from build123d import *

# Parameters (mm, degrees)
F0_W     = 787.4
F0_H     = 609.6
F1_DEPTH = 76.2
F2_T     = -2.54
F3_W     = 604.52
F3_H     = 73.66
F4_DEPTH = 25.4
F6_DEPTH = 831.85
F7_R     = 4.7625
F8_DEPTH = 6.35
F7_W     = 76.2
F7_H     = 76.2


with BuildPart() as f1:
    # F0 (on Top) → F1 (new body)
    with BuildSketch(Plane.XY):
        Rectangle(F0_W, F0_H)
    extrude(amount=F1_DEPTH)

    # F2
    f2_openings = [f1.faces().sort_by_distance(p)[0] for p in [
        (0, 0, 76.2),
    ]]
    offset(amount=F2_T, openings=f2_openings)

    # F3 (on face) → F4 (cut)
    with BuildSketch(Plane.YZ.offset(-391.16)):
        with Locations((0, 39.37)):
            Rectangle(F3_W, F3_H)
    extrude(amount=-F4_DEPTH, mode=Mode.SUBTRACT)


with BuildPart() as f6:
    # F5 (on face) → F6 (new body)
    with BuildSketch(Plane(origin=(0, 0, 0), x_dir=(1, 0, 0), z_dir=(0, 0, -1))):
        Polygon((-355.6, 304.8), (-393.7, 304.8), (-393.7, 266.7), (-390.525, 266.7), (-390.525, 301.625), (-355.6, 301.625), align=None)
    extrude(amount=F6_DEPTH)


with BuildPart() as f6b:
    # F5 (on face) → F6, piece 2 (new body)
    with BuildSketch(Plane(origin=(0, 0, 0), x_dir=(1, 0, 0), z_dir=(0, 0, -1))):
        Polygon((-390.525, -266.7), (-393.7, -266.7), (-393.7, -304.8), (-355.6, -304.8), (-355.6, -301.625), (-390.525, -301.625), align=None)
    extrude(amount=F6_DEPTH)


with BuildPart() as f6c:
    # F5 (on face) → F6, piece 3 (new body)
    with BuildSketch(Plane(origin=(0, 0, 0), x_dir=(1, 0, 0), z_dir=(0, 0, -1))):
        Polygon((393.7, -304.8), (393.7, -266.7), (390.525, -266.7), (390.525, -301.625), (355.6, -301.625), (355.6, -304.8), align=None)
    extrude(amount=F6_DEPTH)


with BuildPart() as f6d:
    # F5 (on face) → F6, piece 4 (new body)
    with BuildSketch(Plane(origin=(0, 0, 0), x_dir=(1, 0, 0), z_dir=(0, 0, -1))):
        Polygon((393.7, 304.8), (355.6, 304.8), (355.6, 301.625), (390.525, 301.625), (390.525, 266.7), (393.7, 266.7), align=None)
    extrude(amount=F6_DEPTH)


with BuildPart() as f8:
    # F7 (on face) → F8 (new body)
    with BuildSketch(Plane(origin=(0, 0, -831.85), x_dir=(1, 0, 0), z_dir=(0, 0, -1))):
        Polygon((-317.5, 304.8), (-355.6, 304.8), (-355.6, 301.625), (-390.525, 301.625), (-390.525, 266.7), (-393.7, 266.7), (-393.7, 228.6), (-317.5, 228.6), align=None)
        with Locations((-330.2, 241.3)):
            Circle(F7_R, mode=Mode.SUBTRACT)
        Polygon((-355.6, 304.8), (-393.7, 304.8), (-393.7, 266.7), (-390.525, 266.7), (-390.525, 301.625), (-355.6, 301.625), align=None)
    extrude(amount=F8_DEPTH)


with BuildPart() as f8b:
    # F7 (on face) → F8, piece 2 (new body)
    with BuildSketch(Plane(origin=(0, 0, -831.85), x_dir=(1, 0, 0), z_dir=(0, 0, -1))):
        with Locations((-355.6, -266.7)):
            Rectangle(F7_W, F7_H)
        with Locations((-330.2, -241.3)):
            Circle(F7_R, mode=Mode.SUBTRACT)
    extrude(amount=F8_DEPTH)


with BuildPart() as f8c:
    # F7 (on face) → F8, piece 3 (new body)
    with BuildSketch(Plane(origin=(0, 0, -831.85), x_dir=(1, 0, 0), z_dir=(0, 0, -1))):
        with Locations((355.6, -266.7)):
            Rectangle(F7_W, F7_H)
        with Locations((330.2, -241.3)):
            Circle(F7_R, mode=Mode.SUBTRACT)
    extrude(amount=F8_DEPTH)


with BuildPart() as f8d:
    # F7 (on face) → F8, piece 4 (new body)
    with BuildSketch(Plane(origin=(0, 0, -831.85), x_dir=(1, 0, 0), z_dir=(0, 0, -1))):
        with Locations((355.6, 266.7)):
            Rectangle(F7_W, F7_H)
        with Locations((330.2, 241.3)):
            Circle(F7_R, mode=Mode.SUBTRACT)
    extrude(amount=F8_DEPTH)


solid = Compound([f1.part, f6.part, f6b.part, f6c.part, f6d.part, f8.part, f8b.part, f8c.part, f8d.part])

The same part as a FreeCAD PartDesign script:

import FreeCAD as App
import Part
import Sketcher
from FreeCAD import Vector
Q = App.Units.Quantity


def faces_at(feature, points):
    """Names of the faces that lie closest to the given points."""
    faces = feature.Shape.Faces
    near = lambda p: min(range(len(faces)), key=lambda i: faces[i].distToShape(Part.Vertex(*p))[0])
    return sorted({f"Face{near(p) + 1}" for p in points})


def add_polygon(sketch, points):
    """Adds a closed chain of lines whose ends are joined by coincident constraints."""
    first, n = sketch.GeometryCount, len(points)
    for a, b in zip(points, points[1:] + points[:1]):
        sketch.addGeometry(Part.LineSegment(App.Vector(*a, 0), App.Vector(*b, 0)), False)
    for i in range(n):
        sketch.addConstraint(Sketcher.Constraint("Coincident", first + i, 2, first + (i + 1) % n, 1))

doc = App.newDocument("Part")
body = doc.addObject("PartDesign::Body", "Body")

# Sketch on XY plane
sketch1 = body.newObject("Sketcher::SketchObject", "Sketch")
sketch1.AttachmentSupport = (doc.getObject("XY_Plane"), [""])
sketch1.MapMode = "FlatFace"
add_polygon(sketch1, [(-394, 305), (-394, -305), (394, -305), (394, 305)])  # lines 0-3
sketch1.addConstraint([
    Sketcher.Constraint("Vertical", 0),
    Sketcher.Constraint("Horizontal", 1),
    Sketcher.Constraint("Vertical", 2),
    Sketcher.Constraint("Horizontal", 3),
    Sketcher.Constraint("Symmetric", 0, 2, 2, 2, -1, 1),
    Sketcher.Constraint("DistanceX", 1, 1, 1, 2, Q("31 in")),
    Sketcher.Constraint("DistanceY", 0, 2, 0, 1, Q("24 in")),
])
pad1 = body.newObject("PartDesign::Pad", "Pad")
pad1.Profile = sketch1
pad1.Length = Q("3 in")
doc.recompute()

thickness = body.newObject("PartDesign::Thickness", "Thickness")
thickness.Base = (pad1, faces_at(pad1, [(0, 0, 76.2)]))
thickness.Value = Q("0.1 in")
thickness.Reversed = True
thickness.Join = "Arc"

# Sketch on YZ plane
sketch2 = body.newObject("Sketcher::SketchObject", "Sketch001")
sketch2.AttachmentSupport = (doc.getObject("YZ_Plane"), [""])
sketch2.MapMode = "FlatFace"
sketch2.AttachmentOffset = App.Placement(Vector(0, 0, -15.4 * 25.4), App.Rotation())
add_polygon(sketch2, [(-302, 76), (-302, 3), (302, 3), (302, 76)])  # lines 0-3
sketch2.addConstraint([
    Sketcher.Constraint("Vertical", 0),
    Sketcher.Constraint("Horizontal", 1),
    Sketcher.Constraint("Vertical", 2),
    Sketcher.Constraint("Horizontal", 3),
    Sketcher.Constraint("DistanceX", 1, 1, 1, 2, Q("23.8 in")),
    Sketcher.Constraint("DistanceY", 0, 2, 0, 1, Q("2.9 in")),
    Sketcher.Constraint("DistanceY", -1, 1, 2, 2, Q("3 in")),
    Sketcher.Constraint("DistanceX", 0, 2, -1, 1, Q("11.9 in")),
])
pocket1 = body.newObject("PartDesign::Pocket", "Pocket")
pocket1.Profile = sketch2
pocket1.Length = Q("1 in")
body2 = doc.addObject("PartDesign::Body", "Body001")

# Sketch on XY plane
sketch3 = body2.newObject("Sketcher::SketchObject", "Sketch002")
sketch3.AttachmentSupport = (doc.getObject("XY_Plane001"), [""])
sketch3.MapMode = "FlatFace"
add_polygon(sketch3, [(-355.6, -304.8), (-393.7, -304.8), (-393.7, -266.7), (-390.5, -266.7), (-390.5, -301.6), (-355.6, -301.6)])  # lines 0-5
sketch3.addConstraint([
    Sketcher.Constraint("Horizontal", 0),
    Sketcher.Constraint("Vertical", 1),
    Sketcher.Constraint("Horizontal", 2),
    Sketcher.Constraint("Vertical", 3),
    Sketcher.Constraint("Horizontal", 4),
    Sketcher.Constraint("Vertical", 5),
    Sketcher.Constraint("Equal", 0, 1),
    Sketcher.Constraint("Equal", 4, 3),
    Sketcher.Constraint("DistanceX", 0, 2, 0, 1, Q("1.5 in")),
    Sketcher.Constraint("DistanceY", 0, 2, -1, 1, Q("12 in")),
    Sketcher.Constraint("DistanceX", 4, 2, -1, 1, Q("14 in")),
    Sketcher.Constraint("DistanceX", 2, 1, 2, 2, Q("0.125 in")),
])
pad2 = body2.newObject("PartDesign::Pad", "Pad001")
pad2.Profile = sketch3
pad2.Length = Q("32.75 in")
pad2.Reversed = True
body3 = doc.addObject("PartDesign::Body", "Body002")

# Sketch on XY plane
sketch4 = body3.newObject("Sketcher::SketchObject", "Sketch003")
sketch4.AttachmentSupport = (doc.getObject("XY_Plane002"), [""])
sketch4.MapMode = "FlatFace"
add_polygon(sketch4, [(-390.5, 266.7), (-393.7, 266.7), (-393.7, 304.8), (-355.6, 304.8), (-355.6, 301.6), (-390.5, 301.6)])  # lines 0-5
sketch4.addConstraint([
    Sketcher.Constraint("Horizontal", 0),
    Sketcher.Constraint("Vertical", 1),
    Sketcher.Constraint("Horizontal", 2),
    Sketcher.Constraint("Vertical", 3),
    Sketcher.Constraint("Horizontal", 4),
    Sketcher.Constraint("Vertical", 5),
    Sketcher.Constraint("Equal", 2, 1),
    Sketcher.Constraint("Equal", 0, 3),
    Sketcher.Constraint("DistanceX", 2, 1, 2, 2, Q("1.5 in")),
    Sketcher.Constraint("DistanceY", -1, 1, 1, 2, Q("12 in")),
    Sketcher.Constraint("DistanceX", 2, 2, -1, 1, Q("14 in")),
    Sketcher.Constraint("DistanceX", 0, 2, 0, 1, Q("0.125 in")),
])
pad3 = body3.newObject("PartDesign::Pad", "Pad002")
pad3.Profile = sketch4
pad3.Length = Q("32.75 in")
pad3.Reversed = True
body4 = doc.addObject("PartDesign::Body", "Body003")

# Sketch on XY plane
sketch5 = body4.newObject("Sketcher::SketchObject", "Sketch004")
sketch5.AttachmentSupport = (doc.getObject("XY_Plane003"), [""])
sketch5.MapMode = "FlatFace"
add_polygon(sketch5, [(393.7, 304.8), (393.7, 266.7), (390.5, 266.7), (390.5, 301.6), (355.6, 301.6), (355.6, 304.8)])  # lines 0-5
sketch5.addConstraint([
    Sketcher.Constraint("Vertical", 0),
    Sketcher.Constraint("Horizontal", 1),
    Sketcher.Constraint("Vertical", 2),
    Sketcher.Constraint("Horizontal", 3),
    Sketcher.Constraint("Vertical", 4),
    Sketcher.Constraint("Horizontal", 5),
    Sketcher.Constraint("Equal", 5, 0),
    Sketcher.Constraint("Equal", 3, 2),
    Sketcher.Constraint("DistanceX", 5, 1, 5, 2, Q("1.5 in")),
    Sketcher.Constraint("DistanceX", -1, 1, 3, 2, Q("14 in")),
    Sketcher.Constraint("DistanceY", -1, 1, 4, 2, Q("12 in")),
    Sketcher.Constraint("DistanceX", 1, 2, 1, 1, Q("0.125 in")),
])
pad4 = body4.newObject("PartDesign::Pad", "Pad003")
pad4.Profile = sketch5
pad4.Length = Q("32.75 in")
pad4.Reversed = True
body5 = doc.addObject("PartDesign::Body", "Body004")

# Sketch on XY plane
sketch6 = body5.newObject("Sketcher::SketchObject", "Sketch005")
sketch6.AttachmentSupport = (doc.getObject("XY_Plane004"), [""])
sketch6.MapMode = "FlatFace"
add_polygon(sketch6, [(393.7, -304.8), (355.6, -304.8), (355.6, -301.6), (390.5, -301.6), (390.5, -266.7), (393.7, -266.7)])  # lines 0-5
sketch6.addConstraint([
    Sketcher.Constraint("Horizontal", 0),
    Sketcher.Constraint("Vertical", 1),
    Sketcher.Constraint("Horizontal", 2),
    Sketcher.Constraint("Vertical", 3),
    Sketcher.Constraint("Horizontal", 4),
    Sketcher.Constraint("Vertical", 5),
    Sketcher.Constraint("Equal", 4, 1),
    Sketcher.Constraint("Equal", 2, 3),
    Sketcher.Constraint("DistanceX", 0, 2, 0, 1, Q("1.5 in")),
    Sketcher.Constraint("DistanceX", -1, 1, 0, 2, Q("14 in")),
    Sketcher.Constraint("DistanceY", 0, 2, -1, 1, Q("12 in")),
    Sketcher.Constraint("DistanceX", 2, 1, 2, 2, Q("1.375 in")),
])
pad5 = body5.newObject("PartDesign::Pad", "Pad004")
pad5.Profile = sketch6
pad5.Length = Q("32.75 in")
pad5.Reversed = True
body6 = doc.addObject("PartDesign::Body", "Body005")

# Sketch on XY plane
sketch7 = body6.newObject("Sketcher::SketchObject", "Sketch006")
sketch7.AttachmentSupport = (doc.getObject("XY_Plane005"), [""])
sketch7.MapMode = "FlatFace"
sketch7.AttachmentOffset = App.Placement(Vector(0, 0, -32.75 * 25.4), App.Rotation())
add_polygon(sketch7, [(-317.5, -304.8), (-393.7, -304.8), (-393.7, -228.6), (-317.5, -228.6)])  # lines 0-3
sketch7.addGeometry(Part.Circle(Vector(-330.2, -241.3, 0), Vector(0, 0, 1), 4.8), False)  # 4
sketch7.addConstraint([
    Sketcher.Constraint("Horizontal", 0),
    Sketcher.Constraint("Vertical", 1),
    Sketcher.Constraint("Horizontal", 2),
    Sketcher.Constraint("Vertical", 3),
    Sketcher.Constraint("Equal", 2, 1),
    Sketcher.Constraint("DistanceX", 0, 2, 0, 1, Q("3 in")),
    Sketcher.Constraint("Diameter", 4, Q("0.375 in")),
    Sketcher.Constraint("DistanceX", 4, 3, -1, 1, Q("13 in")),
    Sketcher.Constraint("DistanceY", 0, 2, -1, 1, Q("12 in")),
    Sketcher.Constraint("DistanceY", 4, 3, -1, 1, Q("9.5 in")),
    Sketcher.Constraint("DistanceX", 0, 2, -1, 1, Q("15.5 in")),
])
pad6 = body6.newObject("PartDesign::Pad", "Pad005")
pad6.Profile = sketch7
pad6.Length = Q("0.25 in")
pad6.Reversed = True
body7 = doc.addObject("PartDesign::Body", "Body006")

# Sketch on XY plane
sketch8 = body7.newObject("Sketcher::SketchObject", "Sketch007")
sketch8.AttachmentSupport = (doc.getObject("XY_Plane006"), [""])
sketch8.MapMode = "FlatFace"
sketch8.AttachmentOffset = App.Placement(Vector(0, 0, -32.75 * 25.4), App.Rotation())
add_polygon(sketch8, [(-393.7, 228.6), (-393.7, 304.8), (-317.5, 304.8), (-317.5, 228.6)])  # lines 0-3
sketch8.addGeometry(Part.Circle(Vector(-330.2, 241.3, 0), Vector(0, 0, 1), 4.8), False)  # 4
sketch8.addConstraint([
    Sketcher.Constraint("Vertical", 0),
    Sketcher.Constraint("Horizontal", 1),
    Sketcher.Constraint("Vertical", 2),
    Sketcher.Constraint("Horizontal", 3),
    Sketcher.Constraint("Equal", 3, 0),
    Sketcher.Constraint("DistanceX", 1, 1, 1, 2, Q("3 in")),
    Sketcher.Constraint("Diameter", 4, Q("0.375 in")),
    Sketcher.Constraint("DistanceX", 4, 3, -1, 1, Q("13 in")),
    Sketcher.Constraint("DistanceY", -1, 1, 0, 2, Q("12 in")),
    Sketcher.Constraint("DistanceY", -1, 1, 4, 3, Q("9.5 in")),
    Sketcher.Constraint("DistanceX", 0, 2, -1, 1, Q("15.5 in")),
])
pad7 = body7.newObject("PartDesign::Pad", "Pad006")
pad7.Profile = sketch8
pad7.Length = Q("0.25 in")
pad7.Reversed = True
body8 = doc.addObject("PartDesign::Body", "Body007")

# Sketch on XY plane
sketch9 = body8.newObject("Sketcher::SketchObject", "Sketch008")
sketch9.AttachmentSupport = (doc.getObject("XY_Plane007"), [""])
sketch9.MapMode = "FlatFace"
sketch9.AttachmentOffset = App.Placement(Vector(0, 0, -32.75 * 25.4), App.Rotation())
add_polygon(sketch9, [(317.5, 228.6), (317.5, 304.8), (393.7, 304.8), (393.7, 228.6)])  # lines 0-3
sketch9.addGeometry(Part.Circle(Vector(330.2, 241.3, 0), Vector(0, 0, 1), 4.8), False)  # 4
sketch9.addConstraint([
    Sketcher.Constraint("Vertical", 0),
    Sketcher.Constraint("Horizontal", 1),
    Sketcher.Constraint("Vertical", 2),
    Sketcher.Constraint("Horizontal", 3),
    Sketcher.Constraint("Equal", 3, 0),
    Sketcher.Constraint("DistanceX", 1, 1, 1, 2, Q("3 in")),
    Sketcher.Constraint("Diameter", 4, Q("0.375 in")),
    Sketcher.Constraint("DistanceX", -1, 1, 4, 3, Q("13 in")),
    Sketcher.Constraint("DistanceY", -1, 1, 0, 2, Q("12 in")),
    Sketcher.Constraint("DistanceY", -1, 1, 4, 3, Q("9.5 in")),
    Sketcher.Constraint("DistanceX", -1, 1, 0, 2, Q("12.5 in")),
])
pad8 = body8.newObject("PartDesign::Pad", "Pad007")
pad8.Profile = sketch9
pad8.Length = Q("0.25 in")
pad8.Reversed = True
body9 = doc.addObject("PartDesign::Body", "Body008")

# Sketch on XY plane
sketch10 = body9.newObject("Sketcher::SketchObject", "Sketch009")
sketch10.AttachmentSupport = (doc.getObject("XY_Plane008"), [""])
sketch10.MapMode = "FlatFace"
sketch10.AttachmentOffset = App.Placement(Vector(0, 0, -32.75 * 25.4), App.Rotation())
add_polygon(sketch10, [(317.5, -304.8), (317.5, -228.6), (393.7, -228.6), (393.7, -304.8)])  # lines 0-3
sketch10.addGeometry(Part.Circle(Vector(330.2, -241.3, 0), Vector(0, 0, 1), 4.8), False)  # 4
sketch10.addConstraint([
    Sketcher.Constraint("Vertical", 0),
    Sketcher.Constraint("Horizontal", 1),
    Sketcher.Constraint("Vertical", 2),
    Sketcher.Constraint("Horizontal", 3),
    Sketcher.Constraint("Equal", 3, 0),
    Sketcher.Constraint("DistanceX", 1, 1, 1, 2, Q("3 in")),
    Sketcher.Constraint("Diameter", 4, Q("0.375 in")),
    Sketcher.Constraint("DistanceX", -1, 1, 4, 3, Q("13 in")),
    Sketcher.Constraint("DistanceY", 0, 2, -1, 1, Q("9 in")),
    Sketcher.Constraint("DistanceY", 4, 3, -1, 1, Q("9.5 in")),
    Sketcher.Constraint("DistanceX", -1, 1, 0, 2, Q("12.5 in")),
])
pad9 = body9.newObject("PartDesign::Pad", "Pad008")
pad9.Profile = sketch10
pad9.Length = Q("0.25 in")
pad9.Reversed = True

doc.recompute()
